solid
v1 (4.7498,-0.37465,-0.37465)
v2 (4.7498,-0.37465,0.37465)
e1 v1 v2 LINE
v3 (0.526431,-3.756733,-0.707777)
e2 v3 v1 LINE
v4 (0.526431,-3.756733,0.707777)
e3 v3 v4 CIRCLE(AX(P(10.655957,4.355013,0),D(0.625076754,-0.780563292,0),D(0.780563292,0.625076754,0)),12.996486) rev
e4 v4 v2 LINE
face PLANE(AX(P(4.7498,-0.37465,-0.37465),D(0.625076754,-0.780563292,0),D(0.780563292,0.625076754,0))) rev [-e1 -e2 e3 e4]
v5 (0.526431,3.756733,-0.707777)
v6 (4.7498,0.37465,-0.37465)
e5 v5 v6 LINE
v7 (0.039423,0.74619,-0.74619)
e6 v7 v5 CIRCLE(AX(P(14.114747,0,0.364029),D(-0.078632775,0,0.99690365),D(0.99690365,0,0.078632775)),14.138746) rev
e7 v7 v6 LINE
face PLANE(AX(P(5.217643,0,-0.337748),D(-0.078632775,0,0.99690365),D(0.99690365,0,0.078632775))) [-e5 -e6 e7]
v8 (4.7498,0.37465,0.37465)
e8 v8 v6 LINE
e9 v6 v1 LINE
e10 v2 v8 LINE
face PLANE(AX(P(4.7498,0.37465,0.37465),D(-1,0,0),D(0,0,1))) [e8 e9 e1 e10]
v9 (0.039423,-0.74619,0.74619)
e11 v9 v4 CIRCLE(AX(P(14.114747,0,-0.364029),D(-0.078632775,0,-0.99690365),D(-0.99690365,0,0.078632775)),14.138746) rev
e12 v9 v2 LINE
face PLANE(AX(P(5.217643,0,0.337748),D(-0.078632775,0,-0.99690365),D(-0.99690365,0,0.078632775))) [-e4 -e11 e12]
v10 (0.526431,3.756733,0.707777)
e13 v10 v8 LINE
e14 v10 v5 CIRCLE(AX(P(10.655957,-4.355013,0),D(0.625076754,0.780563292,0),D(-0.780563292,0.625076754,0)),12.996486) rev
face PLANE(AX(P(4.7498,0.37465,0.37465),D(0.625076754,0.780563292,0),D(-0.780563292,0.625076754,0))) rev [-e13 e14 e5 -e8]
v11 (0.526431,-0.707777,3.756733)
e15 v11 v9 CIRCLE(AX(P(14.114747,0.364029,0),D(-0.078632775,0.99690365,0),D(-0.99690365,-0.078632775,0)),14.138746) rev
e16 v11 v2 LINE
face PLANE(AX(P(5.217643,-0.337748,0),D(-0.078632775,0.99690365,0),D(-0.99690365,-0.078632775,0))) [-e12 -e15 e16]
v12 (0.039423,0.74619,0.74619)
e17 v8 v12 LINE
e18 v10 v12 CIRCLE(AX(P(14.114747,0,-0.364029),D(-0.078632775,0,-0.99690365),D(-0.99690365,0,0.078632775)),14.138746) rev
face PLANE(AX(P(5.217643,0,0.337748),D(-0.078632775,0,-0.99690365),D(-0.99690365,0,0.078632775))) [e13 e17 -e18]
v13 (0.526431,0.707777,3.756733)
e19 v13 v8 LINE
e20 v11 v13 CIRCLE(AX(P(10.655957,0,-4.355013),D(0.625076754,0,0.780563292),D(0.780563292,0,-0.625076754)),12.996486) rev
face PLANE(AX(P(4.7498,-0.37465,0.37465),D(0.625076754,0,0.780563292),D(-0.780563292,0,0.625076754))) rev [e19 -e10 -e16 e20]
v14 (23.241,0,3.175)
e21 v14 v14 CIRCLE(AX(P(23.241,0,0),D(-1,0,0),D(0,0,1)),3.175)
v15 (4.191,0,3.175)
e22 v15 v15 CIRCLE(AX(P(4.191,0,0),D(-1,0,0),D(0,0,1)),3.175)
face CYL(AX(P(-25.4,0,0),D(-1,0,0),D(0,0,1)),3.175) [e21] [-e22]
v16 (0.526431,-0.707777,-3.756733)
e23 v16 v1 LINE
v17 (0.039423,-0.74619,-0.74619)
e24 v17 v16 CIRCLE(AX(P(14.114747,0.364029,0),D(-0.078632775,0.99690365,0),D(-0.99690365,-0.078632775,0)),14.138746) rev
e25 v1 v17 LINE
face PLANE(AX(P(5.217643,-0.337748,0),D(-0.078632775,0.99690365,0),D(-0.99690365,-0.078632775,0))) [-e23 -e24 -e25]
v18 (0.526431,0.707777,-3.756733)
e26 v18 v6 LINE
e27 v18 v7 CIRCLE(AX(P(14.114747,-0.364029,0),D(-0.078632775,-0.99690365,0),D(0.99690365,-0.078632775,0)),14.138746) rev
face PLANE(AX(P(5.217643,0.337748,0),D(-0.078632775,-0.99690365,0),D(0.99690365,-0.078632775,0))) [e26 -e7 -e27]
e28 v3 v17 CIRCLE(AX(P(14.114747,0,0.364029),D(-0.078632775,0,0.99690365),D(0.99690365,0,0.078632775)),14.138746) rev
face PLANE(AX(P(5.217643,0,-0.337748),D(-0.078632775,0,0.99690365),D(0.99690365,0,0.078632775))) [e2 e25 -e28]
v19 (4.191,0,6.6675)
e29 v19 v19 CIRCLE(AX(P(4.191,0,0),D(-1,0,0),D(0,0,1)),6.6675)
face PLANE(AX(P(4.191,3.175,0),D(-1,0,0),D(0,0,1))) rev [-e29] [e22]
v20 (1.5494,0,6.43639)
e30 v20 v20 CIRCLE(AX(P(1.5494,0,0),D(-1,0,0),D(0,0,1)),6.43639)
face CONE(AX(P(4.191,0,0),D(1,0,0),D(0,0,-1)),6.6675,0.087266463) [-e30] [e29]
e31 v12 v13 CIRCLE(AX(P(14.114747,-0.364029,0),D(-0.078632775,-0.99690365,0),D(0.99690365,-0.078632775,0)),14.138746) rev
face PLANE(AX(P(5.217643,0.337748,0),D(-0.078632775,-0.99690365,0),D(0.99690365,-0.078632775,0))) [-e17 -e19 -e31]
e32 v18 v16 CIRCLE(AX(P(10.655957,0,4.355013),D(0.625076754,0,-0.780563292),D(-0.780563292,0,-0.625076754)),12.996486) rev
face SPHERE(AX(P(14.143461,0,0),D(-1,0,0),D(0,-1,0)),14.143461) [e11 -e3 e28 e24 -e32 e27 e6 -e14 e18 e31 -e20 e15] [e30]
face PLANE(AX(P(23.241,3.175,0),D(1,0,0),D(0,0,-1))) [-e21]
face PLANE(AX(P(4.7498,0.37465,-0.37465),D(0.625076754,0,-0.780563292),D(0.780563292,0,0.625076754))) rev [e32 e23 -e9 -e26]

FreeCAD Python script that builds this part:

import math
import FreeCAD as App
import Part
import Sketcher
Q = App.Units.Quantity


def add_polygon(sketch, points):
    """Adds a closed chain of lines whose ends are joined by coincident constraints."""
    first, n = sketch.GeometryCount, len(points)
    for a, b in zip(points, points[1:] + points[:1]):
        sketch.addGeometry(Part.LineSegment(App.Vector(*a, 0), App.Vector(*b, 0)), False)
    for i in range(n):
        sketch.addConstraint(Sketcher.Constraint("Coincident", first + i, 2, first + (i + 1) % n, 1))

doc = App.newDocument("Part")
body = doc.addObject("PartDesign::Body", "Body")

sketch1 = body.newObject("Sketcher::SketchObject", "Sketch")
sketch1.AttachmentSupport = (doc.getObject("XY_Plane"), [""])
sketch1.MapMode = "FlatFace"
sketch1.addGeometry(Part.LineSegment(App.Vector(4.191, 3.175, 0), App.Vector(4.191, 6.6675, 0)), False)
sketch1.addGeometry(Part.LineSegment(App.Vector(4.191, 6.6675, 0), App.Vector(1.5494, 6.43639, 0)), False)
sketch1.addGeometry(Part.ArcOfCircle(Part.Circle(App.Vector(14.143461, 0, 0), App.Vector(0, 0, 1), 14.143461), math.radians(152.929992), math.radians(180)), False)
sketch1.addGeometry(Part.LineSegment(App.Vector(0, 0, 0), App.Vector(23.241, 0, 0)), False)
sketch1.addGeometry(Part.LineSegment(App.Vector(23.241, 0, 0), App.Vector(23.241, 3.175, 0)), False)
sketch1.addGeometry(Part.LineSegment(App.Vector(23.241, 3.175, 0), App.Vector(4.191, 3.175, 0)), False)
sketch1.addConstraint(Sketcher.Constraint("Coincident", 0, 2, 1, 1))
sketch1.addConstraint(Sketcher.Constraint("Coincident", 1, 2, 2, 1))
sketch1.addConstraint(Sketcher.Constraint("Coincident", 2, 2, 3, 1))
sketch1.addConstraint(Sketcher.Constraint("Coincident", 3, 2, 4, 1))
sketch1.addConstraint(Sketcher.Constraint("Coincident", 4, 2, 5, 1))
sketch1.addConstraint(Sketcher.Constraint("Coincident", 5, 2, 0, 1))
sketch1.addConstraint(Sketcher.Constraint("Vertical", 0))
sketch1.addConstraint(Sketcher.Constraint("Horizontal", 3))
sketch1.addConstraint(Sketcher.Constraint("Vertical", 4))
sketch1.addConstraint(Sketcher.Constraint("Horizontal", 5))
sketch1.addConstraint(Sketcher.Constraint("Coincident", 2, 2, -1, 1))
sketch1.addConstraint(Sketcher.Constraint("PointOnObject", 2, 3, -1))
sketch1.addConstraint(Sketcher.Constraint("Angle", 1, Q("-175 deg")))
sketch1.addConstraint(Sketcher.Constraint("DistanceX", 5, 2, 5, 1, Q("0.75 in")))
sketch1.addConstraint(Sketcher.Constraint("DistanceX", 3, 1, 3, 2, Q("0.915 in")))
sketch1.addConstraint(Sketcher.Constraint("DistanceY", 4, 1, 4, 2, Q("0.125 in")))
sketch1.addConstraint(Sketcher.Constraint("DistanceY", 0, 1, 0, 2, Q("0.1375 in")))
sketch1.addConstraint(Sketcher.Constraint("DistanceX", -1, 1, 1, 2, Q("0.061 in")))
revolution = body.newObject("PartDesign::Revolution", "Revolution")
revolution.Profile = sketch1
revolution.ReferenceAxis = (sketch1, ["H_Axis"])
revolution.Angle = 360

sketch2 = body.newObject("Sketcher::SketchObject", "Sketch001")
sketch2.AttachmentSupport = (doc.getObject("YZ_Plane"), [""])
sketch2.MapMode = "FlatFace"
add_polygon(sketch2, [(4.1783, -0.7493), (4.1783, 0.7493), (-4.1783, 0.7493), (-4.1783, -0.7493)])
sketch2.addConstraint(Sketcher.Constraint("Vertical", 0))
sketch2.addConstraint(Sketcher.Constraint("Horizontal", 1))
sketch2.addConstraint(Sketcher.Constraint("Vertical", 2))
sketch2.addConstraint(Sketcher.Constraint("Horizontal", 3))
sketch2.addConstraint(Sketcher.Constraint("Symmetric", 0, 2, 2, 2, -1, 1))
sketch2.addConstraint(Sketcher.Constraint("DistanceX", 1, 2, 1, 1, Q("0.329 in")))
sketch2.addConstraint(Sketcher.Constraint("DistanceY", 0, 1, 0, 2, Q("0.059 in")))

sketch3 = body.newObject("Sketcher::SketchObject", "Sketch002")
sketch3.AttachmentSupport = (doc.getObject("YZ_Plane"), [""])
sketch3.MapMode = "FlatFace"
sketch3.AttachmentOffset = App.Placement(App.Vector(0, 0, 0.187 * 25.4), App.Rotation())
add_polygon(sketch3, [(0.37465, -0.37465), (0.37465, 0.37465), (-0.37465, 0.37465), (-0.37465, -0.37465)])
sketch3.addConstraint(Sketcher.Constraint("Vertical", 0))
sketch3.addConstraint(Sketcher.Constraint("Horizontal", 1))
sketch3.addConstraint(Sketcher.Constraint("Vertical", 2))
sketch3.addConstraint(Sketcher.Constraint("Horizontal", 3))
sketch3.addConstraint(Sketcher.Constraint("Symmetric", 0, 2, 2, 2, -1, 1))
sketch3.addConstraint(Sketcher.Constraint("Equal", 3, 0))
sketch3.addConstraint(Sketcher.Constraint("DistanceX", 1, 2, 1, 1, Q("0.0295 in")))

subtractiveloft = body.newObject("PartDesign::SubtractiveLoft", "SubtractiveLoft")
subtractiveloft.Profile = sketch2
subtractiveloft.Sections = [sketch3]
doc.recompute()

polarpattern = body.newObject("PartDesign::PolarPattern", "PolarPattern")
polarpattern.Originals = [subtractiveloft]
polarpattern.Axis = (doc.getObject("X_Axis"), [""])
polarpattern.Angle = 90
polarpattern.Occurrences = 2
body.Tip = polarpattern

doc.recompute()
